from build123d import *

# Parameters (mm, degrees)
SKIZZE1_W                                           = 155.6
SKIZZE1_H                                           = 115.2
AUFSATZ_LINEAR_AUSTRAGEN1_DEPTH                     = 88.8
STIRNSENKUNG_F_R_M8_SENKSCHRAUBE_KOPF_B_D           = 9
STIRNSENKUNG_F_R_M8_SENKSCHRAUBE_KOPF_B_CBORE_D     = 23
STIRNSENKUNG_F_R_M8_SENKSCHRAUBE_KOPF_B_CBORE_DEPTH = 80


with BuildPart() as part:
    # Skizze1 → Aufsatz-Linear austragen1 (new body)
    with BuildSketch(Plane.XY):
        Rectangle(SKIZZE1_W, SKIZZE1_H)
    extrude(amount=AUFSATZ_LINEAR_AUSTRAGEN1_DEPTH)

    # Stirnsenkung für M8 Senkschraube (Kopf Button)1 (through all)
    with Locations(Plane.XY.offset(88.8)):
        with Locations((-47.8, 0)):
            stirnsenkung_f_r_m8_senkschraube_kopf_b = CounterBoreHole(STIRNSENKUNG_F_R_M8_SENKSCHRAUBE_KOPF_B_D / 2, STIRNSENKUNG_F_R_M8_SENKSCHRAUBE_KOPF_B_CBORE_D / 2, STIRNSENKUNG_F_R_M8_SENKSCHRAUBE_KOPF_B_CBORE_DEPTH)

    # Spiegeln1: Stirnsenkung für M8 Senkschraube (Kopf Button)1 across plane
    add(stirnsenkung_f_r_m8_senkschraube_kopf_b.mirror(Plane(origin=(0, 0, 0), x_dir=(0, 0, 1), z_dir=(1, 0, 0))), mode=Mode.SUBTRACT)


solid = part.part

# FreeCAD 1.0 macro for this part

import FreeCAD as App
import Part
import Sketcher

V = App.Vector
Q = App.Units.Quantity

doc = App.newDocument("Part")
body = doc.addObject("PartDesign::Body", "Body")

sketch1 = body.newObject("Sketcher::SketchObject", "Sketch")
sketch1.AttachmentSupport = (doc.getObject("XY_Plane"), [""])
sketch1.MapMode = "FlatFace"
sketch1.addGeometry([
    Part.LineSegment(V(-77.8, 57.6, 0), V(-77.8, -57.6, 0)),
    Part.LineSegment(V(-77.8, -57.6, 0), V(77.8, -57.6, 0)),
    Part.LineSegment(V(77.8, -57.6, 0), V(77.8, 57.6, 0)),
    Part.LineSegment(V(77.8, 57.6, 0), V(-77.8, 57.6, 0)),
], False)
sketch1.addConstraint([
    Sketcher.Constraint("Coincident", 0, 2, 1, 1),
    Sketcher.Constraint("Coincident", 1, 2, 2, 1),
    Sketcher.Constraint("Coincident", 2, 2, 3, 1),
    Sketcher.Constraint("Coincident", 3, 2, 0, 1),
    Sketcher.Constraint("Vertical", 0),
    Sketcher.Constraint("Horizontal", 1),
    Sketcher.Constraint("Vertical", 2),
    Sketcher.Constraint("Horizontal", 3),
    Sketcher.Constraint("Symmetric", 0, 2, 2, 2, -1, 1),
    Sketcher.Constraint("DistanceX", 1, 1, 1, 2, Q("155.6 mm")),
    Sketcher.Constraint("DistanceY", 0, 2, 0, 1, Q("115.2 mm")),
])
pad1 = body.newObject("PartDesign::Pad", "Pad")
pad1.Profile = sketch1
pad1.Length = 88.8

sketch2 = body.newObject("Sketcher::SketchObject", "Sketch001")
sketch2.AttachmentSupport = (doc.getObject("XY_Plane"), [""])
sketch2.MapMode = "FlatFace"
sketch2.AttachmentOffset = App.Placement(V(0, 0, 88.8), App.Rotation())
sketch2.addGeometry(Part.Circle(V(-47.8, 0, 0), V(0, 0, 1), 4.5), False)
sketch2.addConstraint([
    Sketcher.Constraint("PointOnObject", 0, 3, -1),
    Sketcher.Constraint("Diameter", 0, Q("9 mm")),
    Sketcher.Constraint("DistanceX", 0, 3, -1, 1, Q("47.8 mm")),
])
doc.recompute()
hole = body.newObject("PartDesign::Hole", "Hole")
hole.Profile = sketch2
hole.ThreadType = "None"
hole.Diameter = 9
hole.DepthType = "ThroughAll"
hole.HoleCutType = "Counterbore"
hole.HoleCutDiameter = 23
hole.HoleCutDepth = 80
doc.recompute()

mirrored = body.newObject("PartDesign::Mirrored", "Mirrored")
mirrored.Originals = [hole]
mirrored.MirrorPlane = (doc.getObject("YZ_Plane"), [""])
body.Tip = mirrored

doc.recompute()
